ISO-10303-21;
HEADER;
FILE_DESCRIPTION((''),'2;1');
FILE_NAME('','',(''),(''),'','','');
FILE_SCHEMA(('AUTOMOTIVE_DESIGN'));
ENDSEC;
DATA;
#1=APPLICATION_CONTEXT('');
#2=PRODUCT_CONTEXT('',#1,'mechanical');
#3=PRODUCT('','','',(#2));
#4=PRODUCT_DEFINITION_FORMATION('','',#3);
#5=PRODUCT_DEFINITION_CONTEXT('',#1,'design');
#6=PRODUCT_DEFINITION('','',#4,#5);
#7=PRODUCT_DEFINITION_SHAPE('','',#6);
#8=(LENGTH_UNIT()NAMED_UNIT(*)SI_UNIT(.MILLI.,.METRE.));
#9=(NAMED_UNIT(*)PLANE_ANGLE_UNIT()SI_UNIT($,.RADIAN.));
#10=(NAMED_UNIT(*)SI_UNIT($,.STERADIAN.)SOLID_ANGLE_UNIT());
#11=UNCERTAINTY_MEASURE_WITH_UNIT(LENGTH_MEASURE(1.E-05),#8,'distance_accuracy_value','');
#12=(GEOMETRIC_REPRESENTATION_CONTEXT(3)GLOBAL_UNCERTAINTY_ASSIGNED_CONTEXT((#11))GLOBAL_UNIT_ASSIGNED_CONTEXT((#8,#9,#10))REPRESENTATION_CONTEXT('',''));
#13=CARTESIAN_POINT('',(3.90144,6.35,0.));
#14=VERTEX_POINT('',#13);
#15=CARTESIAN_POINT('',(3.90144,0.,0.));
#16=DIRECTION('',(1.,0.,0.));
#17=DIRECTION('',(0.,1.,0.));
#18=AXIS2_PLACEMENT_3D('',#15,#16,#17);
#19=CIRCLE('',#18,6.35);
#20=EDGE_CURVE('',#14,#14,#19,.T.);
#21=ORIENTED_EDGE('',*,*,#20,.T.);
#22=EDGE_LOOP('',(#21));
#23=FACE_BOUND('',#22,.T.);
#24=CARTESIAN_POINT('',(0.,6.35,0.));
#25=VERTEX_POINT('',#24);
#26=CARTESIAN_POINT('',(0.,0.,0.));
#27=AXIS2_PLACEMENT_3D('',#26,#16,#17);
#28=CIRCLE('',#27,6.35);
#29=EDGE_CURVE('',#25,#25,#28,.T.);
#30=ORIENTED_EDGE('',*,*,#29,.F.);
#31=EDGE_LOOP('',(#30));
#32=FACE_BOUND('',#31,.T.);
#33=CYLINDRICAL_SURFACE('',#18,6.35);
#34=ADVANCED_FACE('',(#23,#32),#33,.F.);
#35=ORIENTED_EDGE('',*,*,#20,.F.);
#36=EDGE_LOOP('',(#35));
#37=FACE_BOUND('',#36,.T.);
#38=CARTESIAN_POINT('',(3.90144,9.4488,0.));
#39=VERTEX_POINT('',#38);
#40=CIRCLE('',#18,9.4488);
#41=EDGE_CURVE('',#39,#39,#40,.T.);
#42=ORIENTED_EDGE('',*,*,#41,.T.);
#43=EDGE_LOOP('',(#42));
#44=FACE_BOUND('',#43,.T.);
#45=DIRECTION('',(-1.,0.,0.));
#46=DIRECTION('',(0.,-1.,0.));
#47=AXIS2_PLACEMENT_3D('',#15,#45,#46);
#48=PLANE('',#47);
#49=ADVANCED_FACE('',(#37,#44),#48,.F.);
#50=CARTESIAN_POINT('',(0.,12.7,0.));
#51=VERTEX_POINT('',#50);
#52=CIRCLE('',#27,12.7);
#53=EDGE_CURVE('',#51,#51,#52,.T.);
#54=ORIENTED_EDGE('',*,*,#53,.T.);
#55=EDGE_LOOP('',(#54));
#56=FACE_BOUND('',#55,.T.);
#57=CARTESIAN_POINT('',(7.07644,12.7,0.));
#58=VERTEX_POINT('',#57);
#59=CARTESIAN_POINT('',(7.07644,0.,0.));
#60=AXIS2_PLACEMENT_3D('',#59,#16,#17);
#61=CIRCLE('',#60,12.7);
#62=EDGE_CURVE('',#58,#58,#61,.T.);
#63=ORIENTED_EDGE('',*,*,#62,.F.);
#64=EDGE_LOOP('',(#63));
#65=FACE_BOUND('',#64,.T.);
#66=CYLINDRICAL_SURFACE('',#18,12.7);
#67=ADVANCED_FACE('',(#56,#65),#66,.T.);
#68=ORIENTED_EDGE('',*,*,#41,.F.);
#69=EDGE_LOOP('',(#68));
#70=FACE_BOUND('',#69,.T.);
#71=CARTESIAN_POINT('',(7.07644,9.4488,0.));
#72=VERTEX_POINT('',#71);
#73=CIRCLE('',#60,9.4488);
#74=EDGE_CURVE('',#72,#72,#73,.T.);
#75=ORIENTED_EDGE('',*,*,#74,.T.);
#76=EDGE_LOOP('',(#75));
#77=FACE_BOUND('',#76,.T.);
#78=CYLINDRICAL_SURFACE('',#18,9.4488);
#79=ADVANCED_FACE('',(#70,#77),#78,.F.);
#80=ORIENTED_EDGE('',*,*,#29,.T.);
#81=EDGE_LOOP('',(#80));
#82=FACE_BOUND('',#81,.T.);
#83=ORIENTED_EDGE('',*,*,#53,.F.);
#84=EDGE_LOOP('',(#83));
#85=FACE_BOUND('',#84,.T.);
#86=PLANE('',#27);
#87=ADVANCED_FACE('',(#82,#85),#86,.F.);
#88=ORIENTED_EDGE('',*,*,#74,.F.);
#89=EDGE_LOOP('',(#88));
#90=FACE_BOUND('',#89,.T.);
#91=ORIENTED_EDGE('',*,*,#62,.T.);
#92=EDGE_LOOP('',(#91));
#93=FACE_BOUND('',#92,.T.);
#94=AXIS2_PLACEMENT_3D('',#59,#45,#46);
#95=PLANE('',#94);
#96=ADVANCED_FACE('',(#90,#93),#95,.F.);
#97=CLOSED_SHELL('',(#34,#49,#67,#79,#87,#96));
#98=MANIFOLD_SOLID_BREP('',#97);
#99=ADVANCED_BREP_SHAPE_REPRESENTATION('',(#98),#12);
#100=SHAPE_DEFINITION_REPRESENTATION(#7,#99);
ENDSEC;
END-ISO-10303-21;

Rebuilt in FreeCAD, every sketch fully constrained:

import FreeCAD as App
import Part
import Sketcher

V = App.Vector
Q = App.Units.Quantity

doc = App.newDocument("Part")
params = doc.addObject("Spreadsheet::Sheet", "Params")
for row, (alias, value) in enumerate([
    ("sketch1_height", "0.25 in"),
    ("sketch1_width", "0.125 in"),
    ("sketch1_height2", "0.122 in"),
    ("revolution_angle", "360 deg"),
], start=1):
    params.set(f"A{row}", alias)
    params.set(f"B{row}", "=" + value)
    params.setAlias(f"B{row}", alias)

body = doc.addObject("PartDesign::Body", "Body")

# Sketch on XY plane
sketch1 = body.newObject("Sketcher::SketchObject", "Sketch")
sketch1.AttachmentSupport = (doc.getObject("XY_Plane"), [""])
sketch1.MapMode = "FlatFace"
sketch1.addGeometry(Part.LineSegment(V(0, 6.3, 0), V(3.9, 6.3, 0)), False)
sketch1.addGeometry(Part.LineSegment(V(3.9, 6.3, 0), V(3.9, 9.4, 0)), False)
sketch1.addGeometry(Part.LineSegment(V(3.9, 9.4, 0), V(7.1, 9.4, 0)), False)
sketch1.addGeometry(Part.LineSegment(V(7.1, 9.4, 0), V(7.1, 12.7, 0)), False)
sketch1.addGeometry(Part.LineSegment(V(7.1, 12.7, 0), V(0, 12.7, 0)), False)
sketch1.addGeometry(Part.LineSegment(V(0, 12.7, 0), V(0, 6.3, 0)), False)
sketch1.addConstraint(Sketcher.Constraint("Coincident", 0, 2, 1, 1))
sketch1.addConstraint(Sketcher.Constraint("Coincident", 1, 2, 2, 1))
sketch1.addConstraint(Sketcher.Constraint("Coincident", 2, 2, 3, 1))
sketch1.addConstraint(Sketcher.Constraint("Coincident", 3, 2, 4, 1))
sketch1.addConstraint(Sketcher.Constraint("Coincident", 4, 2, 5, 1))
sketch1.addConstraint(Sketcher.Constraint("Coincident", 5, 2, 0, 1))
sketch1.addConstraint(Sketcher.Constraint("Horizontal", 0))
sketch1.addConstraint(Sketcher.Constraint("Vertical", 1))
sketch1.addConstraint(Sketcher.Constraint("Horizontal", 2))
sketch1.addConstraint(Sketcher.Constraint("Vertical", 3))
sketch1.addConstraint(Sketcher.Constraint("Horizontal", 4))
sketch1.addConstraint(Sketcher.Constraint("Vertical", 5))
sketch1.addConstraint(Sketcher.Constraint("PointOnObject", 4, 2, -2))
sketch1.addConstraint(Sketcher.Constraint("DistanceY", 5, 2, 5, 1, Q("0.25 in")))
sketch1.addConstraint(Sketcher.Constraint("DistanceY", -1, 1, 3, 2, Q("0.5 in")))
sketch1.addConstraint(Sketcher.Constraint("DistanceX", 2, 1, 2, 2, Q("0.125 in")))
sketch1.addConstraint(Sketcher.Constraint("DistanceY", 1, 1, 1, 2, Q("0.122 in")))
sketch1.addConstraint(Sketcher.Constraint("DistanceX", 0, 1, 0, 2, Q("0.1536 in")))
sketch1.setExpression("Constraints[13]", "Params.sketch1_height")
sketch1.setExpression("Constraints[15]", "Params.sketch1_width")
sketch1.setExpression("Constraints[16]", "Params.sketch1_height2")
revolution = body.newObject("PartDesign::Revolution", "Revolution")
revolution.Profile = sketch1
revolution.ReferenceAxis = (sketch1, ["H_Axis"])
revolution.setExpression("Angle", "Params.revolution_angle")

doc.recompute()
